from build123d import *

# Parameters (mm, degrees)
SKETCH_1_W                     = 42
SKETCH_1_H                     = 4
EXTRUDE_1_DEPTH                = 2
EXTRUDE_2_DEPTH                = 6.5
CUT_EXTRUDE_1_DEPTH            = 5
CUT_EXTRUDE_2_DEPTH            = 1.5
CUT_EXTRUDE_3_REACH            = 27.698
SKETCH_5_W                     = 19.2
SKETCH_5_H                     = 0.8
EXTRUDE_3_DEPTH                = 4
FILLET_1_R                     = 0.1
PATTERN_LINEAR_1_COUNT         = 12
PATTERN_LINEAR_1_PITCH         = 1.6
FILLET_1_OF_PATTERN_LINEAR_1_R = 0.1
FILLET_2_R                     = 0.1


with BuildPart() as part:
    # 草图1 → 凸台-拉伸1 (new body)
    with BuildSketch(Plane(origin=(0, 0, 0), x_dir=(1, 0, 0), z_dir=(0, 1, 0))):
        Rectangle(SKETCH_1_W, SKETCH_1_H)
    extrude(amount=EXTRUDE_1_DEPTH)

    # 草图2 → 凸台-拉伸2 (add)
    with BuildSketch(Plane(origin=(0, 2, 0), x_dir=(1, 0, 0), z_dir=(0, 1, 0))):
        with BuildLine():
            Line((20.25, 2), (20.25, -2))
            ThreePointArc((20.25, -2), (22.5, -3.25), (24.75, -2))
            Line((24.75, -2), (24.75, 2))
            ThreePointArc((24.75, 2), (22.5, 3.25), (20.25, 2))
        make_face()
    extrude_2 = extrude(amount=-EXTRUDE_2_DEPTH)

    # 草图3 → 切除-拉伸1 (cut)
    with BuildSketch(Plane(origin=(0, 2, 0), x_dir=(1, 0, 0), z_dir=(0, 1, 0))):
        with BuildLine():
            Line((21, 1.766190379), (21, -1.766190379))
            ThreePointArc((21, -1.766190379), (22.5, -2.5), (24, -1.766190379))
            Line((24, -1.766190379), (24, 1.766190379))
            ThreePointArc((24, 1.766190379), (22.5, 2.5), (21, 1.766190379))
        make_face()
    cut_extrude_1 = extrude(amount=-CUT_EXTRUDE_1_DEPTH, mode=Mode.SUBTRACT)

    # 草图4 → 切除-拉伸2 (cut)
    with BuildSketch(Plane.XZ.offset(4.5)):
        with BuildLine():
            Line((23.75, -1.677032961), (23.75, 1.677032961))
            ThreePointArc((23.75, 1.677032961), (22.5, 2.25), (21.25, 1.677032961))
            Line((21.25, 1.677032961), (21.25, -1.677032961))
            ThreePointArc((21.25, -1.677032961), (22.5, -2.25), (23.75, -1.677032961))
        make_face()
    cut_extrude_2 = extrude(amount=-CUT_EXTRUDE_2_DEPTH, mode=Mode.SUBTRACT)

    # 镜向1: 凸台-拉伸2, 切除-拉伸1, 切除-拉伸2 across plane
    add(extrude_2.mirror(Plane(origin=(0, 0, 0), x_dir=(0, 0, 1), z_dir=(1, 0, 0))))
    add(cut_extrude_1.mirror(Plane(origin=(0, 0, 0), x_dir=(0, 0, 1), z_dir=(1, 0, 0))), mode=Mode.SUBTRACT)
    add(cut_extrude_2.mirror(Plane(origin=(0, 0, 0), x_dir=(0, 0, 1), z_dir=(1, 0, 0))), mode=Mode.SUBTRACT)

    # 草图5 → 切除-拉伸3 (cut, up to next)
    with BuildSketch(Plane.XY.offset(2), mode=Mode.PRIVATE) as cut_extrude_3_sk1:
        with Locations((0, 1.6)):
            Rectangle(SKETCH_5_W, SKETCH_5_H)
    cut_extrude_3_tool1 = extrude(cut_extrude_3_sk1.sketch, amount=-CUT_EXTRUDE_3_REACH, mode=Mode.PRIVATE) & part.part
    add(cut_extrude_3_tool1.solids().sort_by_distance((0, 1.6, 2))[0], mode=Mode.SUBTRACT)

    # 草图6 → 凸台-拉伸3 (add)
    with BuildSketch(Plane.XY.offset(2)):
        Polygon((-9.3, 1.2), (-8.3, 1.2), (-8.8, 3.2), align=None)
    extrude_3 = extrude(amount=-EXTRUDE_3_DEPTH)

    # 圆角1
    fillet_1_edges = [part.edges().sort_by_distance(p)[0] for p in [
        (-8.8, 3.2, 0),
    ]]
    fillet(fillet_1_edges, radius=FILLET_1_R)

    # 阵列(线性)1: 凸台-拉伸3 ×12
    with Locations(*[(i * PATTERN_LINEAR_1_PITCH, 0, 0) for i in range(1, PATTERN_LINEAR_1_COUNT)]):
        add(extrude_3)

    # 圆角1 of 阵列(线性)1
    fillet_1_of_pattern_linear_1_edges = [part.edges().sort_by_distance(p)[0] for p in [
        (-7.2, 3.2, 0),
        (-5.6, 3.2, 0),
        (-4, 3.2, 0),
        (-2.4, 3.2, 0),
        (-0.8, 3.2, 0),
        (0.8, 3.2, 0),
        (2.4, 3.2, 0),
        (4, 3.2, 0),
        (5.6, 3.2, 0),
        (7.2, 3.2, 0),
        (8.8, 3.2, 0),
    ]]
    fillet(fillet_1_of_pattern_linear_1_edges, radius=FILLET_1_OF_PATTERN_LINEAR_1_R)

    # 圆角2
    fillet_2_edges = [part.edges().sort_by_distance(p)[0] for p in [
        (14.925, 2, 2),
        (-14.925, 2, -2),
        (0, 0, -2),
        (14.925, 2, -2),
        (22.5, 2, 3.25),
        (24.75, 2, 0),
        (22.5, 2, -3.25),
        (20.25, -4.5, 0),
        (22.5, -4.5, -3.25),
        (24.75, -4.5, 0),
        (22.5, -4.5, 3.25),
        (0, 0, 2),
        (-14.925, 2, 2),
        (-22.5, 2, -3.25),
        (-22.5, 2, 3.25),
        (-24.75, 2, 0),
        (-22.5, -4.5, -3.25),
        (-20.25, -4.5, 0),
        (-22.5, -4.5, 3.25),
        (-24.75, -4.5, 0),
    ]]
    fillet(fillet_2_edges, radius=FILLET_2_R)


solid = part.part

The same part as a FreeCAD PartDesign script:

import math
import FreeCAD as App
import Part
import Sketcher
from FreeCAD import Vector
Q = App.Units.Quantity


def edges_at(feature, points):
    """Names of the edges that pass closest to the given points."""
    edges = feature.Shape.Edges
    near = lambda p: min(range(len(edges)), key=lambda i: edges[i].distToShape(Part.Vertex(*p))[0])
    return sorted({f"Edge{near(p) + 1}" for p in points})

doc = App.newDocument("Part")
body = doc.addObject("PartDesign::Body", "Body")

# Sketch on XZ plane
sketch1 = body.newObject("Sketcher::SketchObject", "Sketch")
sketch1.AttachmentSupport = (doc.getObject("XZ_Plane"), [""])
sketch1.MapMode = "FlatFace"
sketch1.addGeometry(Part.LineSegment(Vector(-21, -2, 0), Vector(-21, 2, 0)), False)
sketch1.addGeometry(Part.LineSegment(Vector(-21, 2, 0), Vector(21, 2, 0)), False)
sketch1.addGeometry(Part.LineSegment(Vector(21, 2, 0), Vector(21, -2, 0)), False)
sketch1.addGeometry(Part.LineSegment(Vector(21, -2, 0), Vector(-21, -2, 0)), False)
sketch1.addConstraint(Sketcher.Constraint("Coincident", 0, 2, 1, 1))
sketch1.addConstraint(Sketcher.Constraint("Coincident", 1, 2, 2, 1))
sketch1.addConstraint(Sketcher.Constraint("Coincident", 2, 2, 3, 1))
sketch1.addConstraint(Sketcher.Constraint("Coincident", 3, 2, 0, 1))
sketch1.addConstraint(Sketcher.Constraint("Vertical", 0))
sketch1.addConstraint(Sketcher.Constraint("Horizontal", 1))
sketch1.addConstraint(Sketcher.Constraint("Vertical", 2))
sketch1.addConstraint(Sketcher.Constraint("Horizontal", 3))
sketch1.addConstraint(Sketcher.Constraint("Symmetric", 0, 2, 2, 2, -1, 1))
sketch1.addConstraint(Sketcher.Constraint("DistanceX", 1, 1, 1, 2, Q("42 mm")))
sketch1.addConstraint(Sketcher.Constraint("DistanceY", 0, 1, 0, 2, Q("4 mm")))
pad1 = body.newObject("PartDesign::Pad", "Pad")
pad1.Profile = sketch1
pad1.Length = 2
pad1.Reversed = True

# Sketch on XZ plane
sketch2 = body.newObject("Sketcher::SketchObject", "Sketch001")
sketch2.AttachmentSupport = (doc.getObject("XZ_Plane"), [""])
sketch2.MapMode = "FlatFace"
sketch2.AttachmentOffset = App.Placement(Vector(0, 0, -2), App.Rotation())
sketch2.addGeometry(Part.LineSegment(Vector(20.25, -2, 0), Vector(20.25, 2, 0)), False)
sketch2.addGeometry(Part.ArcOfCircle(Part.Circle(Vector(22.5, 0.6, 0), Vector(0, 0, 1), 2.65), math.radians(31.890792), math.radians(148.109208)), False)
sketch2.addGeometry(Part.LineSegment(Vector(24.75, 2, 0), Vector(24.75, -2, 0)), False)
sketch2.addGeometry(Part.ArcOfCircle(Part.Circle(Vector(22.5, -0.6, 0), Vector(0, 0, 1), 2.65), math.radians(-148.109208), math.radians(-31.890792)), False)
sketch2.addConstraint(Sketcher.Constraint("Coincident", 0, 2, 1, 2))
sketch2.addConstraint(Sketcher.Constraint("Coincident", 1, 1, 2, 1))
sketch2.addConstraint(Sketcher.Constraint("Coincident", 2, 2, 3, 2))
sketch2.addConstraint(Sketcher.Constraint("Coincident", 3, 1, 0, 1))
sketch2.addConstraint(Sketcher.Constraint("Vertical", 0))
sketch2.addConstraint(Sketcher.Constraint("Vertical", 2))
sketch2.addConstraint(Sketcher.Constraint("Equal", 1, 3))
sketch2.addConstraint(Sketcher.Constraint("Symmetric", 1, 3, 3, 3, -1))
sketch2.addConstraint(Sketcher.Constraint("Horizontal", 0, 2, 1, 1))
sketch2.addConstraint(Sketcher.Constraint("DistanceY", 0, 1, 0, 2, Q("4 mm")))
sketch2.addConstraint(Sketcher.Constraint("Radius", 1, Q("2.65 mm")))
sketch2.addConstraint(Sketcher.Constraint("DistanceX", -1, 1, 1, 3, Q("22.5 mm")))
sketch2.addConstraint(Sketcher.Constraint("DistanceY", -1, 1, 1, 3, Q("0.6 mm")))
pad2 = body.newObject("PartDesign::Pad", "Pad001")
pad2.Profile = sketch2
pad2.Length = 6.5

# Sketch on XZ plane
sketch3 = body.newObject("Sketcher::SketchObject", "Sketch002")
sketch3.AttachmentSupport = (doc.getObject("XZ_Plane"), [""])
sketch3.MapMode = "FlatFace"
sketch3.AttachmentOffset = App.Placement(Vector(0, 0, -2), App.Rotation())
sketch3.addGeometry(Part.LineSegment(Vector(21, -1.76619, 0), Vector(21, 1.76619, 0)), False)
sketch3.addGeometry(Part.ArcOfCircle(Part.Circle(Vector(22.5, 0.6, 0), Vector(0, 0, 1), 1.9), math.radians(37.863646), math.radians(142.136354)), False)
sketch3.addGeometry(Part.LineSegment(Vector(24, 1.76619, 0), Vector(24, -1.76619, 0)), False)
sketch3.addGeometry(Part.ArcOfCircle(Part.Circle(Vector(22.5, -0.6, 0), Vector(0, 0, 1), 1.9), math.radians(-142.136354), math.radians(-37.863646)), False)
sketch3.addConstraint(Sketcher.Constraint("Coincident", 0, 2, 1, 2))
sketch3.addConstraint(Sketcher.Constraint("Coincident", 1, 1, 2, 1))
sketch3.addConstraint(Sketcher.Constraint("Coincident", 2, 2, 3, 2))
sketch3.addConstraint(Sketcher.Constraint("Coincident", 3, 1, 0, 1))
sketch3.addConstraint(Sketcher.Constraint("Vertical", 0))
sketch3.addConstraint(Sketcher.Constraint("Vertical", 2))
sketch3.addConstraint(Sketcher.Constraint("Equal", 1, 3))
sketch3.addConstraint(Sketcher.Constraint("Symmetric", 1, 3, 3, 3, -1))
sketch3.addConstraint(Sketcher.Constraint("Horizontal", 0, 2, 1, 1))
sketch3.addConstraint(Sketcher.Constraint("Radius", 1, Q("1.9 mm")))
sketch3.addConstraint(Sketcher.Constraint("DistanceX", -1, 1, 0, 2, Q("21 mm")))
sketch3.addConstraint(Sketcher.Constraint("DistanceX", -1, 1, 1, 1, Q("24 mm")))
sketch3.addConstraint(Sketcher.Constraint("DistanceY", -1, 1, 1, 3, Q("0.6 mm")))
pocket1 = body.newObject("PartDesign::Pocket", "Pocket")
pocket1.Profile = sketch3
pocket1.Length = 5
pocket1.Reversed = True

# Sketch on XZ plane
sketch4 = body.newObject("Sketcher::SketchObject", "Sketch003")
sketch4.AttachmentSupport = (doc.getObject("XZ_Plane"), [""])
sketch4.MapMode = "FlatFace"
sketch4.AttachmentOffset = App.Placement(Vector(0, 0, 4.5), App.Rotation())
sketch4.addGeometry(Part.LineSegment(Vector(23.75, -1.677033, 0), Vector(23.75, 1.677033, 0)), False)
sketch4.addGeometry(Part.ArcOfCircle(Part.Circle(Vector(22.5, 0.6, 0), Vector(0, 0, 1), 1.65), math.radians(40.749054), math.radians(139.250946)), False)
sketch4.addGeometry(Part.LineSegment(Vector(21.25, 1.677033, 0), Vector(21.25, -1.677033, 0)), False)
sketch4.addGeometry(Part.ArcOfCircle(Part.Circle(Vector(22.5, -0.6, 0), Vector(0, 0, 1), 1.65), math.radians(-139.250946), math.radians(-40.749054)), False)
sketch4.addConstraint(Sketcher.Constraint("Coincident", 0, 2, 1, 1))
sketch4.addConstraint(Sketcher.Constraint("Coincident", 1, 2, 2, 1))
sketch4.addConstraint(Sketcher.Constraint("Coincident", 2, 2, 3, 1))
sketch4.addConstraint(Sketcher.Constraint("Coincident", 3, 2, 0, 1))
sketch4.addConstraint(Sketcher.Constraint("Vertical", 0))
sketch4.addConstraint(Sketcher.Constraint("Vertical", 2))
sketch4.addConstraint(Sketcher.Constraint("Equal", 1, 3))
sketch4.addConstraint(Sketcher.Constraint("Symmetric", 1, 3, 3, 3, -1))
sketch4.addConstraint(Sketcher.Constraint("Horizontal", 0, 2, 1, 2))
sketch4.addConstraint(Sketcher.Constraint("Radius", 1, Q("1.65 mm")))
sketch4.addConstraint(Sketcher.Constraint("DistanceX", -1, 1, 1, 3, Q("22.5 mm")))
sketch4.addConstraint(Sketcher.Constraint("DistanceY", -1, 1, 1, 3, Q("0.6 mm")))
sketch4.addConstraint(Sketcher.Constraint("DistanceX", 1, 2, 0, 2, Q("2.5 mm")))
pocket2 = body.newObject("PartDesign::Pocket", "Pocket001")
pocket2.Profile = sketch4
pocket2.Length = 1.5
doc.recompute()

mirrored = body.newObject("PartDesign::Mirrored", "Mirrored")
mirrored.Originals = [pad2, pocket1, pocket2]
mirrored.MirrorPlane = (doc.getObject("YZ_Plane"), [""])
body.Tip = mirrored

# Sketch on XY plane
sketch5 = body.newObject("Sketcher::SketchObject", "Sketch004")
sketch5.AttachmentSupport = (doc.getObject("XY_Plane"), [""])
sketch5.MapMode = "FlatFace"
sketch5.AttachmentOffset = App.Placement(Vector(0, 0, 2), App.Rotation())
sketch5.addGeometry(Part.LineSegment(Vector(-9.6, 2, 0), Vector(-9.6, 1.2, 0)), False)
sketch5.addGeometry(Part.LineSegment(Vector(-9.6, 1.2, 0), Vector(9.6, 1.2, 0)), False)
sketch5.addGeometry(Part.LineSegment(Vector(9.6, 1.2, 0), Vector(9.6, 2, 0)), False)
sketch5.addGeometry(Part.LineSegment(Vector(9.6, 2, 0), Vector(-9.6, 2, 0)), False)
sketch5.addConstraint(Sketcher.Constraint("Coincident", 0, 2, 1, 1))
sketch5.addConstraint(Sketcher.Constraint("Coincident", 1, 2, 2, 1))
sketch5.addConstraint(Sketcher.Constraint("Coincident", 2, 2, 3, 1))
sketch5.addConstraint(Sketcher.Constraint("Coincident", 3, 2, 0, 1))
sketch5.addConstraint(Sketcher.Constraint("Vertical", 0))
sketch5.addConstraint(Sketcher.Constraint("Horizontal", 1))
sketch5.addConstraint(Sketcher.Constraint("Vertical", 2))
sketch5.addConstraint(Sketcher.Constraint("Horizontal", 3))
sketch5.addConstraint(Sketcher.Constraint("DistanceX", 1, 1, 1, 2, Q("19.2 mm")))
sketch5.addConstraint(Sketcher.Constraint("DistanceY", 0, 2, 0, 1, Q("0.8 mm")))
sketch5.addConstraint(Sketcher.Constraint("DistanceY", -1, 1, 2, 2, Q("2 mm")))
sketch5.addConstraint(Sketcher.Constraint("DistanceX", 0, 2, -1, 1, Q("9.6 mm")))
pocket3 = body.newObject("PartDesign::Pocket", "Pocket002")
pocket3.Profile = sketch5
pocket3.Type = "UpToFirst"

# Sketch on XY plane
sketch6 = body.newObject("Sketcher::SketchObject", "Sketch005")
sketch6.AttachmentSupport = (doc.getObject("XY_Plane"), [""])
sketch6.MapMode = "FlatFace"
sketch6.AttachmentOffset = App.Placement(Vector(0, 0, 2), App.Rotation())
sketch6.addGeometry(Part.LineSegment(Vector(-9.3, 1.2, 0), Vector(-8.3, 1.2, 0)), False)
sketch6.addGeometry(Part.LineSegment(Vector(-8.3, 1.2, 0), Vector(-8.8, 3.2, 0)), False)
sketch6.addGeometry(Part.LineSegment(Vector(-8.8, 3.2, 0), Vector(-9.3, 1.2, 0)), False)
sketch6.addConstraint(Sketcher.Constraint("Coincident", 0, 2, 1, 1))
sketch6.addConstraint(Sketcher.Constraint("Coincident", 1, 2, 2, 1))
sketch6.addConstraint(Sketcher.Constraint("Coincident", 2, 2, 0, 1))
sketch6.addConstraint(Sketcher.Constraint("Horizontal", 0))
sketch6.addConstraint(Sketcher.Constraint("Equal", 1, 2))
sketch6.addConstraint(Sketcher.Constraint("DistanceX", 0, 1, 0, 2, Q("1 mm")))
sketch6.addConstraint(Sketcher.Constraint("DistanceY", 0, 2, 1, 2, Q("2 mm")))
sketch6.addConstraint(Sketcher.Constraint("DistanceX", 0, 2, -1, 1, Q("8.3 mm")))
sketch6.addConstraint(Sketcher.Constraint("DistanceY", -1, 1, 0, 2, Q("1.2 mm")))
pad3 = body.newObject("PartDesign::Pad", "Pad002")
pad3.Profile = sketch6
pad3.Length = 4
pad3.Reversed = True
doc.recompute()

fillet = body.newObject("PartDesign::Fillet", "Fillet")
fillet.Base = (pad3, edges_at(pad3, [(-8.8, 3.2, 0)]))
fillet.Radius = 0.1
doc.recompute()

linearpattern = body.newObject("PartDesign::LinearPattern", "LinearPattern")
linearpattern.Originals = [pad3]
linearpattern.Direction = (doc.getObject("X_Axis"), [""])
linearpattern.Mode = "offset"
linearpattern.Offset = 1.6
linearpattern.Occurrences = 12
body.Tip = linearpattern
doc.recompute()

fillet2 = body.newObject("PartDesign::Fillet", "Fillet001")
fillet2.Base = (linearpattern, edges_at(linearpattern, [
    (-7.2, 3.2, 0),
    (-5.6, 3.2, 0),
    (-4, 3.2, 0),
    (-2.4, 3.2, 0),
    (-0.8, 3.2, 0),
    (0.8, 3.2, 0),
    (2.4, 3.2, 0),
    (4, 3.2, 0),
    (5.6, 3.2, 0),
    (7.2, 3.2, 0),
    (8.8, 3.2, 0),
]))
fillet2.Radius = 0.1
doc.recompute()

fillet3 = body.newObject("PartDesign::Fillet", "Fillet002")
fillet3.Base = (fillet2, edges_at(fillet2, [
    (14.925, 2, 2),
    (-14.925, 2, -2),
    (0, 0, -2),
    (14.925, 2, -2),
    (22.5, 2, 3.25),
    (24.75, 2, 0),
    (22.5, 2, -3.25),
    (20.25, -4.5, 0),
    (22.5, -4.5, -3.25),
    (24.75, -4.5, 0),
    (22.5, -4.5, 3.25),
    (0, 0, 2),
    (-14.925, 2, 2),
    (-22.5, 2, -3.25),
    (-22.5, 2, 3.25),
    (-24.75, 2, 0),
    (-22.5, -4.5, -3.25),
    (-20.25, -4.5, 0),
    (-22.5, -4.5, 3.25),
    (-24.75, -4.5, 0),
]))
fillet3.Radius = 0.1

doc.recompute()
